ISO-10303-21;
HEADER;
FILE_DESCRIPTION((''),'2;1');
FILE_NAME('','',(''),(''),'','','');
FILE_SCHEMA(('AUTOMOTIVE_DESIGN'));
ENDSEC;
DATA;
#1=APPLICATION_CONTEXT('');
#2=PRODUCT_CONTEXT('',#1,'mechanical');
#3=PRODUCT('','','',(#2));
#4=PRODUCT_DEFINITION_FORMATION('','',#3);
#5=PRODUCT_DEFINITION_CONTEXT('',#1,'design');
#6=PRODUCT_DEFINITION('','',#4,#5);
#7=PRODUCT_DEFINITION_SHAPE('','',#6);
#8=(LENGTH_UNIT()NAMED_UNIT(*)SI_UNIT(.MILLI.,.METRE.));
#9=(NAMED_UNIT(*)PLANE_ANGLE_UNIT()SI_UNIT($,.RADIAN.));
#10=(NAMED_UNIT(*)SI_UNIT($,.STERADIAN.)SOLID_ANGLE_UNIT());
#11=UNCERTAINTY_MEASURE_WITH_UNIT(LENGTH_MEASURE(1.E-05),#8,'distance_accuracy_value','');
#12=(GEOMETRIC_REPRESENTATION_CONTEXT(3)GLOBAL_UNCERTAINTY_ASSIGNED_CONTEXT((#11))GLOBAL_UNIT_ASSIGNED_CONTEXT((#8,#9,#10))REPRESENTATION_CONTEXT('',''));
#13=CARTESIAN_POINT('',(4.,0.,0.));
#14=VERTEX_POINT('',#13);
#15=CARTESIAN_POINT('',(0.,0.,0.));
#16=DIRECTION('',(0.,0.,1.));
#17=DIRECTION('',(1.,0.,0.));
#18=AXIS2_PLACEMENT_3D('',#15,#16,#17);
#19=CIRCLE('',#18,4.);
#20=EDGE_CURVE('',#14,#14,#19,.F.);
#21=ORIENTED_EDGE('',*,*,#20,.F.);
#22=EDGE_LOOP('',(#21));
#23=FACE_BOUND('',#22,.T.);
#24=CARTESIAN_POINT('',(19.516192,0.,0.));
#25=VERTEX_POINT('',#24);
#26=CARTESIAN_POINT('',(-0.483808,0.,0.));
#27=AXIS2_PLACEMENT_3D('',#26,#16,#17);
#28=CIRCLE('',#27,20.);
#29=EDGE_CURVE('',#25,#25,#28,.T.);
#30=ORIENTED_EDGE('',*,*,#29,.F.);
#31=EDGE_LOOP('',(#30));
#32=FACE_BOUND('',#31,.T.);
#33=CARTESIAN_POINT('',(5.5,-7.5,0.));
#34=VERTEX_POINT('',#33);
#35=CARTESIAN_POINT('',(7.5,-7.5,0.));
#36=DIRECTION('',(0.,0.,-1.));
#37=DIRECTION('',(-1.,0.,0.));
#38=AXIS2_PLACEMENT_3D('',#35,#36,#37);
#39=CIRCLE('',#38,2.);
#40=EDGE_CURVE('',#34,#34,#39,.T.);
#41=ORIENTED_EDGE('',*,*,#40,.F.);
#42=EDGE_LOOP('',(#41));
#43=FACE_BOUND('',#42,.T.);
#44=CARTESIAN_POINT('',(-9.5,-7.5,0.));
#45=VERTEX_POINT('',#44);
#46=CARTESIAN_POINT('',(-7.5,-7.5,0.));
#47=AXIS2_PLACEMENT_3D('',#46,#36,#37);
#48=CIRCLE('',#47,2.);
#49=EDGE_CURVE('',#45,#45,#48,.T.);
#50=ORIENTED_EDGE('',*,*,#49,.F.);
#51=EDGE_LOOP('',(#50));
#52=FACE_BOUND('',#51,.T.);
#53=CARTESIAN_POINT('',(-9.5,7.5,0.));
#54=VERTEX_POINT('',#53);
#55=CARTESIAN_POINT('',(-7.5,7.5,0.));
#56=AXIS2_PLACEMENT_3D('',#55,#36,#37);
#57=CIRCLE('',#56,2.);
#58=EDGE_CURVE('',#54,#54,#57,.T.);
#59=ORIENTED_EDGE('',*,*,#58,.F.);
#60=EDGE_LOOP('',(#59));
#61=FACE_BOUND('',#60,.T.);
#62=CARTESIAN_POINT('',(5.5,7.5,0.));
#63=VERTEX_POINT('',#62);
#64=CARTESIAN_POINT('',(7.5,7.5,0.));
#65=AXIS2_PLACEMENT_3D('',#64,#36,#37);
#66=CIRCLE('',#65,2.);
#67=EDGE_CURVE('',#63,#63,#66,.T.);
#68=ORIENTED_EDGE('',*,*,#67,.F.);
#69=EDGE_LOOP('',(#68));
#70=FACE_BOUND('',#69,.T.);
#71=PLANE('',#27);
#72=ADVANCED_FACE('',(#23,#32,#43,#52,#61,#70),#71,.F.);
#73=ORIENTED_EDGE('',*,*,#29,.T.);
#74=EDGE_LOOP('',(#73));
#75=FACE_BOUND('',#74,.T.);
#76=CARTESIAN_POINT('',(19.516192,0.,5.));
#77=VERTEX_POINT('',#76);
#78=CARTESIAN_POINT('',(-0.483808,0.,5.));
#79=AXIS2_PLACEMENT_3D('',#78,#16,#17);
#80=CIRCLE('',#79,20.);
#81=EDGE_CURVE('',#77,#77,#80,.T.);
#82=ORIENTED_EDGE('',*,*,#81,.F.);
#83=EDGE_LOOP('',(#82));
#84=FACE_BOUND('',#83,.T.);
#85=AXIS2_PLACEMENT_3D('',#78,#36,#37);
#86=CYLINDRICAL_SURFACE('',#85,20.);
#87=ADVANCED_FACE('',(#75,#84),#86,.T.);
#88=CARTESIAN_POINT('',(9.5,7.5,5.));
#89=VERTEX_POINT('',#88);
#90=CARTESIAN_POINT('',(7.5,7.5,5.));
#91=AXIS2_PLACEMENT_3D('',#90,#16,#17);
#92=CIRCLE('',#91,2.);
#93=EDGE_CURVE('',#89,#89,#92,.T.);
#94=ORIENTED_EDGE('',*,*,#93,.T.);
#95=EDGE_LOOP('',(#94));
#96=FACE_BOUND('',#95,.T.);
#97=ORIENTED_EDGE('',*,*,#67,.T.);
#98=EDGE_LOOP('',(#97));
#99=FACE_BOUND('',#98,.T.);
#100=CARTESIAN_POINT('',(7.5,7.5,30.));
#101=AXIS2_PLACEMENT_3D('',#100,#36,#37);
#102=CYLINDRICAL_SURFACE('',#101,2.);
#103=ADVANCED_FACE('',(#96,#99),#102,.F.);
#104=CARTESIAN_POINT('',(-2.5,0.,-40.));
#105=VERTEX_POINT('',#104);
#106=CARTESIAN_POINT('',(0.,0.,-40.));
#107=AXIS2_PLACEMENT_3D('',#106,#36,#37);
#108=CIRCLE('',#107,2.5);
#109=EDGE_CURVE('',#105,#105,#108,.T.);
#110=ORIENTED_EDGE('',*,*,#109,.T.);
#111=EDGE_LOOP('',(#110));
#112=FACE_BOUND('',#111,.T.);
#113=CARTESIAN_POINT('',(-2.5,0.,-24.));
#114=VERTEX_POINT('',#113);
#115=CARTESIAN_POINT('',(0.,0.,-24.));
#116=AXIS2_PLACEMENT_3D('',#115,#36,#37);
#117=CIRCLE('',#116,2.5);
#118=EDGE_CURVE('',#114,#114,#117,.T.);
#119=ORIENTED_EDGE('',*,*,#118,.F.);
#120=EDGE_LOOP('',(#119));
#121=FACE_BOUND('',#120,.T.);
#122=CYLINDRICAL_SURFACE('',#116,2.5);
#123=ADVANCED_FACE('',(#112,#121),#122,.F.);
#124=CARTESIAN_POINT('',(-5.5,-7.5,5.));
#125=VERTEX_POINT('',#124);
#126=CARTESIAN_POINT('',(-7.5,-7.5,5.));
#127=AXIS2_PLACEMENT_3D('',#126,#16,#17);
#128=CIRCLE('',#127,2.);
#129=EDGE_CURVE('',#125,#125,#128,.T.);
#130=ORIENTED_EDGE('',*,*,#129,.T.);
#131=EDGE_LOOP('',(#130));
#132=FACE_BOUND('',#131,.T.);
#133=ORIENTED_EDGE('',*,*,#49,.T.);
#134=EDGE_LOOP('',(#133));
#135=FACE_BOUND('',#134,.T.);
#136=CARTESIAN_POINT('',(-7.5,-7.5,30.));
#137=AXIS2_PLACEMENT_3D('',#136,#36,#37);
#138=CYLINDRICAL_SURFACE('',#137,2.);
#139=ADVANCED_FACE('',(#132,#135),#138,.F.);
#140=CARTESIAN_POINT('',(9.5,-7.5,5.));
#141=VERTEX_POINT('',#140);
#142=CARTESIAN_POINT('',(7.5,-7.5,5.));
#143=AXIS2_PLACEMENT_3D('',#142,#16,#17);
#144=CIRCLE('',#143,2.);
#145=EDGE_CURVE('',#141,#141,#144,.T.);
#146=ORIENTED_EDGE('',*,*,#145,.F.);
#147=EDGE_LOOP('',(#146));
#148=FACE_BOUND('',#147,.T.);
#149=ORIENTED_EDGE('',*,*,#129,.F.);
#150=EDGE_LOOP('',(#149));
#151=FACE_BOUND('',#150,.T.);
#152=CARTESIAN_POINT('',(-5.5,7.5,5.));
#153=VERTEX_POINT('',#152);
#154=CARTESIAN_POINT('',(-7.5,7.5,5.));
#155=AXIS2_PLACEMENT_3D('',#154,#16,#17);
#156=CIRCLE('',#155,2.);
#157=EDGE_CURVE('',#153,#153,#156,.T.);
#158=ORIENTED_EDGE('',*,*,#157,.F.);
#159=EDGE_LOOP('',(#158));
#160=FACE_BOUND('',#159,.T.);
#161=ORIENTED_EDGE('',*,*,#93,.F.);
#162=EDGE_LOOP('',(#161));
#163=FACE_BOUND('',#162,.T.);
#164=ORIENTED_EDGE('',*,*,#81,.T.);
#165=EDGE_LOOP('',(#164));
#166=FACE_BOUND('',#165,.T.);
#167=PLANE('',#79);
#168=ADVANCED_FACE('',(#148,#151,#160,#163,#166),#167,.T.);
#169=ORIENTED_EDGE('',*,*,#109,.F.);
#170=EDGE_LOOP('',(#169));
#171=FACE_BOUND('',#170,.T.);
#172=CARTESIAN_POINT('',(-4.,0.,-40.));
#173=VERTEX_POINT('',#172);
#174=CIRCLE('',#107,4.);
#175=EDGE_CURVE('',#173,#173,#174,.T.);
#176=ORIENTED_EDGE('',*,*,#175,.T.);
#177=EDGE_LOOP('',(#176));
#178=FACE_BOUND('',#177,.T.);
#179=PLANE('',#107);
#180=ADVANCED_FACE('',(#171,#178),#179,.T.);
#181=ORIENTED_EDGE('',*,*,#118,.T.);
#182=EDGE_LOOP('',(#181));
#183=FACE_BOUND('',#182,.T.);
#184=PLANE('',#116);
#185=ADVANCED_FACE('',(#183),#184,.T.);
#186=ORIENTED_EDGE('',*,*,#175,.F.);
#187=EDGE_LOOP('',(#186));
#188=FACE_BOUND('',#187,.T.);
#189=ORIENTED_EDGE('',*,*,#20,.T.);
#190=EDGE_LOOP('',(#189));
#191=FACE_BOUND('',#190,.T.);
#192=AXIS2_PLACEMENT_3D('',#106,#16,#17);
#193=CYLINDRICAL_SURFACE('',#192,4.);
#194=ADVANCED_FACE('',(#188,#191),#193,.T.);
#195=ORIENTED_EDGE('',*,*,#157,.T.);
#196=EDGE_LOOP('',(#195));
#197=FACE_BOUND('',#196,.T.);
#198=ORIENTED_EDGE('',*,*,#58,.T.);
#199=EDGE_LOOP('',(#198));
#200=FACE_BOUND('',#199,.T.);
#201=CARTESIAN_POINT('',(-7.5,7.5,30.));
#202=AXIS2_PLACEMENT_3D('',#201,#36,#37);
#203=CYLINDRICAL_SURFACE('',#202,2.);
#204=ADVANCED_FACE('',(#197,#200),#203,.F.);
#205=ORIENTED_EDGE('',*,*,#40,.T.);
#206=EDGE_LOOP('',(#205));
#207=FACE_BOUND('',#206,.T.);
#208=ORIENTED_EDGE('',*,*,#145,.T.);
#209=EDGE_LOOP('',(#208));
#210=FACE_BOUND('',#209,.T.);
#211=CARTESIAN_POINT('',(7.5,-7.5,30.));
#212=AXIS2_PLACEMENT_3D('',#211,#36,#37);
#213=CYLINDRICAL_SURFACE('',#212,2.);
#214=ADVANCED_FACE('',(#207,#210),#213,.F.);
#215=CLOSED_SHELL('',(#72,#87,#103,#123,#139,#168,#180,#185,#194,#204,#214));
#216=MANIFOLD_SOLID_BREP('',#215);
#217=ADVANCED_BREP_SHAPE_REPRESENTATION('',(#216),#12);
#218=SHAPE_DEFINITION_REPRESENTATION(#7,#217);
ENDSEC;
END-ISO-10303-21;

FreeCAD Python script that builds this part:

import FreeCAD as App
import Part
import Sketcher

V = App.Vector

doc = App.newDocument("Part")
params = doc.addObject("Spreadsheet::Sheet", "Params")
for row, (alias, value) in enumerate([
    ("sketch1_diameter", "40 mm"),
    ("pad1_length", "5 mm"),
    ("sketch2_diameter", "4 mm"),
    ("pocket1_length", "30 mm"),
    ("sketch3_diameter", "8 mm"),
    ("pad2_length", "40 mm"),
    ("sketch4_diameter", "5 mm"),
    ("pocket2_length", "16 mm"),
], start=1):
    params.set(f"A{row}", alias)
    params.set(f"B{row}", "=" + value)
    params.setAlias(f"B{row}", alias)

body = doc.addObject("PartDesign::Body", "Body")

# Sketch on XY plane
sketch1 = body.newObject("Sketcher::SketchObject", "Sketch")
sketch1.AttachmentSupport = (doc.getObject("XY_Plane"), [""])
sketch1.MapMode = "FlatFace"
sketch1.addGeometry(Part.Circle(V(-0.483808, 0, 0), V(0, 0, 1), 20), False)
sketch1.addConstraint([
    Sketcher.Constraint("PointOnObject", 0, 3, -1),
    Sketcher.Constraint("Diameter", 0, 40.0),
    Sketcher.Constraint("DistanceX", 0, 3, -1, 1, 0.483808),
])
sketch1.setExpression("Constraints[1]", "Params.sketch1_diameter")
pad1 = body.newObject("PartDesign::Pad", "Pad")
pad1.Profile = sketch1
pad1.setExpression("Length", "Params.pad1_length")

# Sketch on XY plane
sketch2 = body.newObject("Sketcher::SketchObject", "Sketch001")
sketch2.AttachmentSupport = (doc.getObject("XY_Plane"), [""])
sketch2.MapMode = "FlatFace"
sketch2.addGeometry([
    Part.Circle(V(-7.5, 7.5, 0), V(0, 0, 1), 2),
    Part.Circle(V(-7.5, -7.5, 0), V(0, 0, 1), 2),
    Part.Circle(V(7.5, -7.5, 0), V(0, 0, 1), 2),
    Part.Circle(V(7.5, 7.5, 0), V(0, 0, 1), 2),
], False)
sketch2.addConstraint([
    Sketcher.Constraint("Equal", 0, 1),
    Sketcher.Constraint("Equal", 1, 2),
    Sketcher.Constraint("Equal", 2, 3),
    Sketcher.Constraint("Symmetric", 0, 3, 2, 3, -1, 1),
    Sketcher.Constraint("Symmetric", 1, 3, 3, 3, -1, 1),
    Sketcher.Constraint("Symmetric", 1, 3, 2, 3, -2),
    Sketcher.Constraint("Diameter", 0, 4.0),
    Sketcher.Constraint("DistanceY", 1, 3, 0, 3, 15.0),
    Sketcher.Constraint("DistanceX", 1, 3, 2, 3, 15.0),
])
sketch2.setExpression("Constraints[6]", "Params.sketch2_diameter")
pocket1 = body.newObject("PartDesign::Pocket", "Pocket")
pocket1.Profile = sketch2
pocket1.setExpression("Length", "Params.pocket1_length")
pocket1.Reversed = True

# Sketch on XY plane
sketch3 = body.newObject("Sketcher::SketchObject", "Sketch002")
sketch3.AttachmentSupport = (doc.getObject("XY_Plane"), [""])
sketch3.MapMode = "FlatFace"
sketch3.addGeometry(Part.Circle(V(0, 0, 0), V(0, 0, 1), 4), False)
sketch3.addConstraint([
    Sketcher.Constraint("Coincident", 0, 3, -1, 1),
    Sketcher.Constraint("Diameter", 0, 8.0),
])
sketch3.setExpression("Constraints[1]", "Params.sketch3_diameter")
pad2 = body.newObject("PartDesign::Pad", "Pad001")
pad2.Profile = sketch3
pad2.setExpression("Length", "Params.pad2_length")
pad2.Reversed = True

# Sketch on XY plane
sketch4 = body.newObject("Sketcher::SketchObject", "Sketch003")
sketch4.AttachmentSupport = (doc.getObject("XY_Plane"), [""])
sketch4.MapMode = "FlatFace"
sketch4.AttachmentOffset = App.Placement(V(0, 0, -40), App.Rotation())
sketch4.addGeometry(Part.Circle(V(0, 0, 0), V(0, 0, 1), 2.5), False)
sketch4.addConstraint([
    Sketcher.Constraint("Coincident", 0, 3, -1, 1),
    Sketcher.Constraint("Diameter", 0, 5.0),
])
sketch4.setExpression("Constraints[1]", "Params.sketch4_diameter")
pocket2 = body.newObject("PartDesign::Pocket", "Pocket001")
pocket2.Profile = sketch4
pocket2.setExpression("Length", "Params.pocket2_length")
pocket2.Reversed = True

doc.recompute()
